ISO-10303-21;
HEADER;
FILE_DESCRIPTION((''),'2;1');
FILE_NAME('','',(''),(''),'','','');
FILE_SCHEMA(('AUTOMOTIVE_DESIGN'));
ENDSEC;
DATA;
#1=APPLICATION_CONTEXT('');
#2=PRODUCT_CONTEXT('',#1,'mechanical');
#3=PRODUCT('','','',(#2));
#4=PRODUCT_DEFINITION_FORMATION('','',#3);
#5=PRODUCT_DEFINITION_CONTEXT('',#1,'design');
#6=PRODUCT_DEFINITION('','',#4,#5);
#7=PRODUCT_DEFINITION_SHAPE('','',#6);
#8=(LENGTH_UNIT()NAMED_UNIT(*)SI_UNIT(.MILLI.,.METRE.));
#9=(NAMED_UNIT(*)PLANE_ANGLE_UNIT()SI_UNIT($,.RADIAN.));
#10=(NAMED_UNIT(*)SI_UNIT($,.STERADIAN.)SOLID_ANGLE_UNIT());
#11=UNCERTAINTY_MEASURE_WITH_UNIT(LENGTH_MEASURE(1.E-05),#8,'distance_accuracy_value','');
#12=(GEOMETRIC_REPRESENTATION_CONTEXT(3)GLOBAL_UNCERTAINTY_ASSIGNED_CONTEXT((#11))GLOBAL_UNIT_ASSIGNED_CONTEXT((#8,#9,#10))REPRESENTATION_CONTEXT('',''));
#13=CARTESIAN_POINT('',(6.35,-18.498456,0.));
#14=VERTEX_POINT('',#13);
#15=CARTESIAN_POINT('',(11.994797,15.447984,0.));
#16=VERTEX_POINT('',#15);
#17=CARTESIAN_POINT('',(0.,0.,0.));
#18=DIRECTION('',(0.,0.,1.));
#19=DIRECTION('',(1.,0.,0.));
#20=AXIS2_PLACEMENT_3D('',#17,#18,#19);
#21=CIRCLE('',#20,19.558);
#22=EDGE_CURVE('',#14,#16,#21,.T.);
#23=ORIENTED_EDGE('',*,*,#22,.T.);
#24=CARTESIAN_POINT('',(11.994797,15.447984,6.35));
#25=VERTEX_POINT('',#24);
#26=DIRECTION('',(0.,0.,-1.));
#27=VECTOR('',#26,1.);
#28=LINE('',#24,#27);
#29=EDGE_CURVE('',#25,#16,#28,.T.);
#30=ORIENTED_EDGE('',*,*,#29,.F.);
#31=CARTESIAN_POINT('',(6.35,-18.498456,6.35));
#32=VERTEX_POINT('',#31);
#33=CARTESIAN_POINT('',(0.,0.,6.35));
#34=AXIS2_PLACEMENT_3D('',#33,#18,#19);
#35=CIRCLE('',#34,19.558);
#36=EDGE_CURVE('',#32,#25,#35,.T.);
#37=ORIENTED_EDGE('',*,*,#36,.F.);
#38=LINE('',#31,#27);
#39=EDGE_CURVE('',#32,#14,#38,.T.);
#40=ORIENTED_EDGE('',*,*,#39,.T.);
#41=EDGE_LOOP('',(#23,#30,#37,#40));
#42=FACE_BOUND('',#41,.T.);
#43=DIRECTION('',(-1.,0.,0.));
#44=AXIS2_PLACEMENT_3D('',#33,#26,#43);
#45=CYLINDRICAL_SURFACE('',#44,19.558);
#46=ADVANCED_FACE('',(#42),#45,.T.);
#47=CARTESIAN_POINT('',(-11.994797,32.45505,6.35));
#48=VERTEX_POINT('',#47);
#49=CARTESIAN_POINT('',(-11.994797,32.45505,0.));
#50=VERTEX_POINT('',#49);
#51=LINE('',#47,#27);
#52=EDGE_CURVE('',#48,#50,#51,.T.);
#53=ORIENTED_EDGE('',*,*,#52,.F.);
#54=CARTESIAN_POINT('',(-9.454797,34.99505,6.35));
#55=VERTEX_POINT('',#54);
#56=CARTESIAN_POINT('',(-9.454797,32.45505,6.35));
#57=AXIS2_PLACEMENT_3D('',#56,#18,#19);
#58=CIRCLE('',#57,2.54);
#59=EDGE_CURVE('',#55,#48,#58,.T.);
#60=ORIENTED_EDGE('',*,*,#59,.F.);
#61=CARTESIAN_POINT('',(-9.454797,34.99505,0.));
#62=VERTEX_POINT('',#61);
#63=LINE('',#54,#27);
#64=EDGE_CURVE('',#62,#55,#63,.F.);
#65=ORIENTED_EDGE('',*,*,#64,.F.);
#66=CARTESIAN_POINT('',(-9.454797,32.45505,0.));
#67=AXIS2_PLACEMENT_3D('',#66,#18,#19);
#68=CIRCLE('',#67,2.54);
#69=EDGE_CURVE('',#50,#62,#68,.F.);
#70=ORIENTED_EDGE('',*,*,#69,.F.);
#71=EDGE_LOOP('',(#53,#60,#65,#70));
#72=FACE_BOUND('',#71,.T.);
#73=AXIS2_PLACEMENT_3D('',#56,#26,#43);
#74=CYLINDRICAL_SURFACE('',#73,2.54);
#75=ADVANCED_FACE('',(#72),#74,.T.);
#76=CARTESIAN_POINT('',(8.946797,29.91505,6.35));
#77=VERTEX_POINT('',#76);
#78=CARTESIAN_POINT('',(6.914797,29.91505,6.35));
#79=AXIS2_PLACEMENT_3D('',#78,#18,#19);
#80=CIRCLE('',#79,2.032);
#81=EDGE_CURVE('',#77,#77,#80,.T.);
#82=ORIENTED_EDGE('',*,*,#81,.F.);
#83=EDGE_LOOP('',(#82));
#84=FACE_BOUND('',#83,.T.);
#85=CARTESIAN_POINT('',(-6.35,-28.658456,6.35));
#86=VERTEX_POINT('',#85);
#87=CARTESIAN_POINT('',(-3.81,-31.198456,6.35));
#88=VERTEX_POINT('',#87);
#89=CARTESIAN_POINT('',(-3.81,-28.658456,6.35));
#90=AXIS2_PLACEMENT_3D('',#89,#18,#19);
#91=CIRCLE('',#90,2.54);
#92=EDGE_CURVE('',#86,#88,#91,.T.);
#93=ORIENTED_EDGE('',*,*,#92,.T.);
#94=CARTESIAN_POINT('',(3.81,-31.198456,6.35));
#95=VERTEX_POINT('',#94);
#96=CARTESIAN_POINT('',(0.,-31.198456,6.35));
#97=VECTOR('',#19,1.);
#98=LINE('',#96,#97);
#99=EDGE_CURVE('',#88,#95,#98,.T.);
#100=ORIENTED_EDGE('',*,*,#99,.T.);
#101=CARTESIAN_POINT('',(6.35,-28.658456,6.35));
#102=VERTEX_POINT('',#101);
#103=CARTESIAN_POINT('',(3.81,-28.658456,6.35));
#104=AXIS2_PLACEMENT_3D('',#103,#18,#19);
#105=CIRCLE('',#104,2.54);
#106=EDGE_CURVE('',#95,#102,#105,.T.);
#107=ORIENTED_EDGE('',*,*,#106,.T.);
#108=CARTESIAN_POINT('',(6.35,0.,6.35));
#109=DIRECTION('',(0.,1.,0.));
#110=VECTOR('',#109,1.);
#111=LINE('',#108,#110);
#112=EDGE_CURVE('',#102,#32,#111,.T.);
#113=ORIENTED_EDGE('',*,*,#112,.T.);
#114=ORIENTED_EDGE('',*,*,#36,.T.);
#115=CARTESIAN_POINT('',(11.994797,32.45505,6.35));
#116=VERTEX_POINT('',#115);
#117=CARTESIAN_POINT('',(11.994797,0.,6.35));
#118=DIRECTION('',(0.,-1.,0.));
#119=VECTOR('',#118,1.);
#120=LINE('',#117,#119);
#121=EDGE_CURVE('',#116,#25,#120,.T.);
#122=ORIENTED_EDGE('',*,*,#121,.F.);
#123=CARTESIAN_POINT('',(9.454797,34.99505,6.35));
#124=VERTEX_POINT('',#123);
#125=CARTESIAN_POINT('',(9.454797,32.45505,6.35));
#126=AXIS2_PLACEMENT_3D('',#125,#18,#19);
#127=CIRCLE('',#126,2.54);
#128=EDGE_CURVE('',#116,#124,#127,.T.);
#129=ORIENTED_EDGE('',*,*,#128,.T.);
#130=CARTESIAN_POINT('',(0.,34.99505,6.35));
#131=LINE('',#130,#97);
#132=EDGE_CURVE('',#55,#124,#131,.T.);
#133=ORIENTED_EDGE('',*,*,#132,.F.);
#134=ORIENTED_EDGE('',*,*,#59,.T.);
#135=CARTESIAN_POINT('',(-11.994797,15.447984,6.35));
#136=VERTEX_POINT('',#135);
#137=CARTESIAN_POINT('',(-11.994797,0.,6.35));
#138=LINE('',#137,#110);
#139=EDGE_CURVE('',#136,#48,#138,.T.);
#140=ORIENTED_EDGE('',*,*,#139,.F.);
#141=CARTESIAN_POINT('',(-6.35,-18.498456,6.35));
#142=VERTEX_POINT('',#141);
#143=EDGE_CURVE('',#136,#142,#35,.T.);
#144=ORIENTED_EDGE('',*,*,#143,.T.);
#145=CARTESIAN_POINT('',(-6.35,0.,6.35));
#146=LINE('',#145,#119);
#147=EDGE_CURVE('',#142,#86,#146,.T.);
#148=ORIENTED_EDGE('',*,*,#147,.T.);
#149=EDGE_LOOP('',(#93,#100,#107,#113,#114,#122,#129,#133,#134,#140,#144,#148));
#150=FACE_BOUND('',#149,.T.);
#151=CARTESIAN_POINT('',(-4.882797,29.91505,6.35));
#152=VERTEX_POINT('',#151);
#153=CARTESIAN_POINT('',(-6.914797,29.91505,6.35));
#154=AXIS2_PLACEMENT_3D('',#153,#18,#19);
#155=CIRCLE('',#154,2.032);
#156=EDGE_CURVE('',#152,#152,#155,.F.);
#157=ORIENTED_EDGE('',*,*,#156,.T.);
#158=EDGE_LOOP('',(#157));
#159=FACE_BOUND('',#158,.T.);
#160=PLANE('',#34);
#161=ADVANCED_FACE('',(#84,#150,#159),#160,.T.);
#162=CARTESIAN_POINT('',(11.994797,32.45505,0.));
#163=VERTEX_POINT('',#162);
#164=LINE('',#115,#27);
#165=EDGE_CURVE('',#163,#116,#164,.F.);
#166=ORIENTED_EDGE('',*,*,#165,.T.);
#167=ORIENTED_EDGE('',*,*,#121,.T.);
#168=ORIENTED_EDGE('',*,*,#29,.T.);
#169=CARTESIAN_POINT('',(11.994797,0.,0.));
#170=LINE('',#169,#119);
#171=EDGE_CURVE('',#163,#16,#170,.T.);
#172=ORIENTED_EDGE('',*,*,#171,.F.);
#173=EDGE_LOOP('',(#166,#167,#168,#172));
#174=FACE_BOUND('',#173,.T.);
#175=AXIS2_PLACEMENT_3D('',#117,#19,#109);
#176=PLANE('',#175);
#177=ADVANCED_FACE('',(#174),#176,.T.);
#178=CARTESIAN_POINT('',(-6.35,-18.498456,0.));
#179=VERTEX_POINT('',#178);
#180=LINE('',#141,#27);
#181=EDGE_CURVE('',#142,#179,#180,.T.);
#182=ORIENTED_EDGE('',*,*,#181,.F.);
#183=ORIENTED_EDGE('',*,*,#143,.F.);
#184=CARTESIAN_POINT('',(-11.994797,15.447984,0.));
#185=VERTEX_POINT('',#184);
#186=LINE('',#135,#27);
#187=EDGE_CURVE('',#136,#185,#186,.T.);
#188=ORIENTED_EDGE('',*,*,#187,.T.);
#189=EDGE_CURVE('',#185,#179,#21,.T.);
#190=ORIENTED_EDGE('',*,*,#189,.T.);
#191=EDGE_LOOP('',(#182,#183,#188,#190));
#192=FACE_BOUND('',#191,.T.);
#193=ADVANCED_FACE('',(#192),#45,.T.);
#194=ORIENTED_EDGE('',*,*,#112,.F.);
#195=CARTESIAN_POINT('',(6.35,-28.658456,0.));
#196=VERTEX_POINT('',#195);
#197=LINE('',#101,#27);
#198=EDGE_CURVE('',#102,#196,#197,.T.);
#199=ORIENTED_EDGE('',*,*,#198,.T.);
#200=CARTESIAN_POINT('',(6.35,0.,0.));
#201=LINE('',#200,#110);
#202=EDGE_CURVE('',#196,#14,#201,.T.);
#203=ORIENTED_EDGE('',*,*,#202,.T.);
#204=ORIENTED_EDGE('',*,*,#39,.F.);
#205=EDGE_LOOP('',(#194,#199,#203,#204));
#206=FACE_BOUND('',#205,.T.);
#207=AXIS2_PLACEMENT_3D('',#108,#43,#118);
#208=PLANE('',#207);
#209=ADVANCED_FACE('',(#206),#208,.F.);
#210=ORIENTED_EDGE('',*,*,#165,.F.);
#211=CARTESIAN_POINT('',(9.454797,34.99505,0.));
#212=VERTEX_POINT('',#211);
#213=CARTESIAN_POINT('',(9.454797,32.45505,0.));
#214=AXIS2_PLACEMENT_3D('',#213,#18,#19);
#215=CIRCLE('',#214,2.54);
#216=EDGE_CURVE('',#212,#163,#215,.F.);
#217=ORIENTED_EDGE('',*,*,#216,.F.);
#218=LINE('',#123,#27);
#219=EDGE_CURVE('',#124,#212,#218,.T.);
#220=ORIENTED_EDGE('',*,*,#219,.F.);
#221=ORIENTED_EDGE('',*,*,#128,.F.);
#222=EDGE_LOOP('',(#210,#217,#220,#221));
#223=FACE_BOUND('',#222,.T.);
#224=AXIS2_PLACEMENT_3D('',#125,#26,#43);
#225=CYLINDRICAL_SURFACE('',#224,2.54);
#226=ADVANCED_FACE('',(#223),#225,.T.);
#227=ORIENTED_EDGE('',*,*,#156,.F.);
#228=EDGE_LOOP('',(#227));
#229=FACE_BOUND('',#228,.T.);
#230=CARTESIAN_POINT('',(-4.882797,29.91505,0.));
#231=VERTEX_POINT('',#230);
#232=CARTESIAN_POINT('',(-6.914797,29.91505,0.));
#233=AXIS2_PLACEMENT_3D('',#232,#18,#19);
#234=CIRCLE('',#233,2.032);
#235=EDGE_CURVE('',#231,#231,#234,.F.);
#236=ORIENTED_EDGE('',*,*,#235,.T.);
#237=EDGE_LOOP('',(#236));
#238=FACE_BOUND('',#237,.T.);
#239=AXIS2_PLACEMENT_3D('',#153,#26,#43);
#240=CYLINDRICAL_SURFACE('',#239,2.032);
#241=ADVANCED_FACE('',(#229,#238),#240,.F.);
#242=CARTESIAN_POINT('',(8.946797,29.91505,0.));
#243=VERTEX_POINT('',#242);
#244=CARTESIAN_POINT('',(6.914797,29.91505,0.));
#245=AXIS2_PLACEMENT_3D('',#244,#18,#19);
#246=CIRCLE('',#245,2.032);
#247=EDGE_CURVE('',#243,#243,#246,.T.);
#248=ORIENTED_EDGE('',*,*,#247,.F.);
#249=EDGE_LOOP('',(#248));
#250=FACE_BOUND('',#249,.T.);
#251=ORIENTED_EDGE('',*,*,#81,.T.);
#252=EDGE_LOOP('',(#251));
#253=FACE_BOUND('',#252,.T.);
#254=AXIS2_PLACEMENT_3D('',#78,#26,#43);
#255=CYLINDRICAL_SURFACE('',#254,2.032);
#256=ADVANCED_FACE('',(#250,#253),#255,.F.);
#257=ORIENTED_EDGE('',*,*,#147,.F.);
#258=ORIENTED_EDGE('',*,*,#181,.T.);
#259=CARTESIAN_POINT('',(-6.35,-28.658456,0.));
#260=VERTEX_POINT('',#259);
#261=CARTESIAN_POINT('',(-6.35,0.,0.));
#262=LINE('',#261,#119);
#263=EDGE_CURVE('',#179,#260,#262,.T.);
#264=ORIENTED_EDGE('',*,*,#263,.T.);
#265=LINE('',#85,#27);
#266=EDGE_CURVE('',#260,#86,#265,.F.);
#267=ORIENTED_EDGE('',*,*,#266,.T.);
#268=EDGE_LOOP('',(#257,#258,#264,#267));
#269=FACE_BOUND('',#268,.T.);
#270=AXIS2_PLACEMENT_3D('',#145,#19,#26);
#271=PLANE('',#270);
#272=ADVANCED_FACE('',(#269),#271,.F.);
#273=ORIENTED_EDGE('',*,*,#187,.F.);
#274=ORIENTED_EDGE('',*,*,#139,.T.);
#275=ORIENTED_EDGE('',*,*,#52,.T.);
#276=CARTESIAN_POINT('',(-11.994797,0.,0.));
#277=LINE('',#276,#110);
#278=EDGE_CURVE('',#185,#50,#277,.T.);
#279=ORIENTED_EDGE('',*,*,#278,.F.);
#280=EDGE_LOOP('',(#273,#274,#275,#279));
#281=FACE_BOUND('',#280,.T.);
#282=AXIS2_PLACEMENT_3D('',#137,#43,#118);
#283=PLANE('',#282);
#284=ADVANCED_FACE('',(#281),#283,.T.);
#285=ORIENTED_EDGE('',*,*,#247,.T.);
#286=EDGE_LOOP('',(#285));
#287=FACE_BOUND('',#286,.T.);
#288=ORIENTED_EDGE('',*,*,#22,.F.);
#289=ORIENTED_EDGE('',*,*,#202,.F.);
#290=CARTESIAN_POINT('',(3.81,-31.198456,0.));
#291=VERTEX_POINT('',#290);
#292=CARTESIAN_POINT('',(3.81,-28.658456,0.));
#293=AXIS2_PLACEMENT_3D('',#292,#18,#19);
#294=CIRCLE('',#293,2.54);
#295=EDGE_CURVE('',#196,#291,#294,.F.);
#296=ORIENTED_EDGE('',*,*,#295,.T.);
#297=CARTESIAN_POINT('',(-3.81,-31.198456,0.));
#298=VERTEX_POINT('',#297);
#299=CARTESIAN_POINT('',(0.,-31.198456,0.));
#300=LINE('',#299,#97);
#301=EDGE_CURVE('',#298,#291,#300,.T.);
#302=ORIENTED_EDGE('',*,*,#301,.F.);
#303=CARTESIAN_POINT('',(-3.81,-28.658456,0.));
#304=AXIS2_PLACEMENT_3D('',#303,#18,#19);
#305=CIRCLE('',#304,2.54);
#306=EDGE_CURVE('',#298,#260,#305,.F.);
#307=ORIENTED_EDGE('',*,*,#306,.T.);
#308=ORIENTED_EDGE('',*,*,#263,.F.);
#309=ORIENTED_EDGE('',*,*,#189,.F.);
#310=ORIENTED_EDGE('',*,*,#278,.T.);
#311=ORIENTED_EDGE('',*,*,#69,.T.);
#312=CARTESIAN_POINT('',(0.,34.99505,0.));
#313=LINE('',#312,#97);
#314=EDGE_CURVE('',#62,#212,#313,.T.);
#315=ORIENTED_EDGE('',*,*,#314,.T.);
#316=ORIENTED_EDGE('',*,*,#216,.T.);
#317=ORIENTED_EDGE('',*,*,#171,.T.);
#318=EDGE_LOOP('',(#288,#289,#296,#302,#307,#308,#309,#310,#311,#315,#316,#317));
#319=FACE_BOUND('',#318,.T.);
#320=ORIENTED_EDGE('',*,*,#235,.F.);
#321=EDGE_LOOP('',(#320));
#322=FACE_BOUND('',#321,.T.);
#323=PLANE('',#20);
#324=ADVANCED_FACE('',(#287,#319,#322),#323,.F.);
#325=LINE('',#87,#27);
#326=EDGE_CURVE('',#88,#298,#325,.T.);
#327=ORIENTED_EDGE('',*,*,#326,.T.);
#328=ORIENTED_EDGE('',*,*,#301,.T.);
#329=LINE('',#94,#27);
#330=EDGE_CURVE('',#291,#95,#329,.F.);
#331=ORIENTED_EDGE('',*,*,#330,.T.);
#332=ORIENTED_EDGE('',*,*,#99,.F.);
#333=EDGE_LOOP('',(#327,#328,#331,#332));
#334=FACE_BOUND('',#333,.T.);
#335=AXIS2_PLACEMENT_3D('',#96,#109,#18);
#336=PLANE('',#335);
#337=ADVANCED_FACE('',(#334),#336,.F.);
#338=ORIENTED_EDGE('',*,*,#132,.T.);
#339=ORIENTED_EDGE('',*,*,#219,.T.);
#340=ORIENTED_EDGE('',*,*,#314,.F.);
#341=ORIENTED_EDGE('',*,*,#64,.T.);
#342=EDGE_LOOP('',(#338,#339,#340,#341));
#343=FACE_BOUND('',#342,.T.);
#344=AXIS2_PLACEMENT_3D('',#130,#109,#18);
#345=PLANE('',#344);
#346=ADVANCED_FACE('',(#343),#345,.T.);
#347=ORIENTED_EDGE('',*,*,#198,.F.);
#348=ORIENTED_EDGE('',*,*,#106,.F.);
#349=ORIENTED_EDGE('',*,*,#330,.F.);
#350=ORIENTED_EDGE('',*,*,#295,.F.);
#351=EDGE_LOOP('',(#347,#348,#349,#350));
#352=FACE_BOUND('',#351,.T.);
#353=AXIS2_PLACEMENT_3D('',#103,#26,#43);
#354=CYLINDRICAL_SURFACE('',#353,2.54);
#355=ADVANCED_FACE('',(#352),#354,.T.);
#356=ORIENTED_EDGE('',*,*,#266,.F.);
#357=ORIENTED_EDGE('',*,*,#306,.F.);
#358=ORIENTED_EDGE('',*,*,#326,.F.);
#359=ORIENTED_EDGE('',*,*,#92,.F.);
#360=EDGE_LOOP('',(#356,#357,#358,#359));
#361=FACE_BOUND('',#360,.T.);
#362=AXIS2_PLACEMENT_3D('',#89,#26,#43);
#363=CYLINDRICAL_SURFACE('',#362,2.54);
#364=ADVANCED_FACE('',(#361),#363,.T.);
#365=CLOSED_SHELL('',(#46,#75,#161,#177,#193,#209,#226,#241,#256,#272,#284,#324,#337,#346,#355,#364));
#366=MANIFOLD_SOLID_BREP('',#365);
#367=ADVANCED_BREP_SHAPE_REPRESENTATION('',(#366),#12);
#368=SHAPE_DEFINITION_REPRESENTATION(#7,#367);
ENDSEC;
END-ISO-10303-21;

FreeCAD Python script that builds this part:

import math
import FreeCAD as App
import Part
import Sketcher

V = App.Vector
Q = App.Units.Quantity


def edges_at(feature, points):
    """Names of the edges that pass closest to the given points."""
    edges = feature.Shape.Edges
    near = lambda p: min(range(len(edges)), key=lambda i: edges[i].distToShape(Part.Vertex(*p))[0])
    return sorted({f"Edge{near(p) + 1}" for p in points})

doc = App.newDocument("Part")
body = doc.addObject("PartDesign::Body", "Body")

# Sketch on XY plane
sketch1 = body.newObject("Sketcher::SketchObject", "Sketch")
sketch1.AttachmentSupport = (doc.getObject("XY_Plane"), [""])
sketch1.MapMode = "FlatFace"
sketch1.addGeometry([
    Part.LineSegment(V(-6.35, -18.498456, 0), V(-6.35, -31.198456, 0)),  # 0
    Part.LineSegment(V(-6.35, -31.198456, 0), V(6.35, -31.198456, 0)),  # 1
    Part.LineSegment(V(6.35, -31.198456, 0), V(6.35, -18.498456, 0)),  # 2
    Part.ArcOfCircle(Part.Circle(V(0, 0, 0), V(0, 0, 1), 19.558), math.radians(-71.054094), math.radians(52.171962)),  # 3
    Part.LineSegment(V(11.994797, 15.447984, 0), V(11.994797, 34.99505, 0)),  # 4
    Part.LineSegment(V(11.994797, 34.99505, 0), V(-11.994797, 34.99505, 0)),  # 5
    Part.LineSegment(V(-11.994797, 34.99505, 0), V(-11.994797, 15.447984, 0)),  # 6
    Part.ArcOfCircle(Part.Circle(V(0, 0, 0), V(0, 0, 1), 19.558), math.radians(127.828038), math.radians(251.054094)),  # 7
    Part.Circle(V(6.914797, 29.91505, 0), V(0, 0, 1), 2.032),  # 8
    Part.Circle(V(-6.914797, 29.91505, 0), V(0, 0, 1), 2.032),  # 9
], False)
sketch1.addConstraint([
    Sketcher.Constraint("Coincident", 0, 2, 1, 1),
    Sketcher.Constraint("Coincident", 1, 2, 2, 1),
    Sketcher.Constraint("Coincident", 2, 2, 3, 1),
    Sketcher.Constraint("Coincident", 3, 2, 4, 1),
    Sketcher.Constraint("Coincident", 4, 2, 5, 1),
    Sketcher.Constraint("Coincident", 5, 2, 6, 1),
    Sketcher.Constraint("Coincident", 6, 2, 7, 1),
    Sketcher.Constraint("Coincident", 7, 2, 0, 1),
    Sketcher.Constraint("Vertical", 0),
    Sketcher.Constraint("Horizontal", 1),
    Sketcher.Constraint("Vertical", 2),
    Sketcher.Constraint("Vertical", 4),
    Sketcher.Constraint("Horizontal", 5),
    Sketcher.Constraint("Vertical", 6),
    Sketcher.Constraint("Coincident", 3, 3, -1, 1),
    Sketcher.Constraint("Coincident", 7, 3, -1, 1),
    Sketcher.Constraint("Equal", 3, 7),
    Sketcher.Constraint("Equal", 8, 9),
    Sketcher.Constraint("Symmetric", 8, 3, 9, 3, -2),
    Sketcher.Constraint("Horizontal", 3, 2, 6, 2),
    Sketcher.Constraint("Horizontal", 2, 2, 7, 2),
    Sketcher.Constraint("Equal", 1, 0),
    Sketcher.Constraint("Diameter", 8, Q("0.16 in")),
    Sketcher.Constraint("Radius", 3, Q("0.77 in")),
    Sketcher.Constraint("DistanceX", 1, 1, 1, 2, Q("0.5 in")),
    Sketcher.Constraint("DistanceX", 8, 3, 3, 2, Q("0.2 in")),
    Sketcher.Constraint("DistanceY", 8, 3, 4, 2, Q("0.2 in")),
    Sketcher.Constraint("DistanceX", 5, 2, 5, 1, Q("23.989594 mm")),
    Sketcher.Constraint("DistanceY", 4, 1, 4, 2, Q("19.547066 mm")),
])
pad1 = body.newObject("PartDesign::Pad", "Pad")
pad1.Profile = sketch1
pad1.Length = Q("0.25 in")
doc.recompute()

fillet = body.newObject("PartDesign::Fillet", "Fillet")
fillet.Base = (pad1, edges_at(pad1, [
    (6.35, -31.198, 3.175),
    (-6.35, -31.198, 3.175),
    (11.995, 34.995, 3.175),
    (-11.995, 34.995, 3.175),
]))
fillet.Radius = Q("0.1 in")

doc.recompute()
